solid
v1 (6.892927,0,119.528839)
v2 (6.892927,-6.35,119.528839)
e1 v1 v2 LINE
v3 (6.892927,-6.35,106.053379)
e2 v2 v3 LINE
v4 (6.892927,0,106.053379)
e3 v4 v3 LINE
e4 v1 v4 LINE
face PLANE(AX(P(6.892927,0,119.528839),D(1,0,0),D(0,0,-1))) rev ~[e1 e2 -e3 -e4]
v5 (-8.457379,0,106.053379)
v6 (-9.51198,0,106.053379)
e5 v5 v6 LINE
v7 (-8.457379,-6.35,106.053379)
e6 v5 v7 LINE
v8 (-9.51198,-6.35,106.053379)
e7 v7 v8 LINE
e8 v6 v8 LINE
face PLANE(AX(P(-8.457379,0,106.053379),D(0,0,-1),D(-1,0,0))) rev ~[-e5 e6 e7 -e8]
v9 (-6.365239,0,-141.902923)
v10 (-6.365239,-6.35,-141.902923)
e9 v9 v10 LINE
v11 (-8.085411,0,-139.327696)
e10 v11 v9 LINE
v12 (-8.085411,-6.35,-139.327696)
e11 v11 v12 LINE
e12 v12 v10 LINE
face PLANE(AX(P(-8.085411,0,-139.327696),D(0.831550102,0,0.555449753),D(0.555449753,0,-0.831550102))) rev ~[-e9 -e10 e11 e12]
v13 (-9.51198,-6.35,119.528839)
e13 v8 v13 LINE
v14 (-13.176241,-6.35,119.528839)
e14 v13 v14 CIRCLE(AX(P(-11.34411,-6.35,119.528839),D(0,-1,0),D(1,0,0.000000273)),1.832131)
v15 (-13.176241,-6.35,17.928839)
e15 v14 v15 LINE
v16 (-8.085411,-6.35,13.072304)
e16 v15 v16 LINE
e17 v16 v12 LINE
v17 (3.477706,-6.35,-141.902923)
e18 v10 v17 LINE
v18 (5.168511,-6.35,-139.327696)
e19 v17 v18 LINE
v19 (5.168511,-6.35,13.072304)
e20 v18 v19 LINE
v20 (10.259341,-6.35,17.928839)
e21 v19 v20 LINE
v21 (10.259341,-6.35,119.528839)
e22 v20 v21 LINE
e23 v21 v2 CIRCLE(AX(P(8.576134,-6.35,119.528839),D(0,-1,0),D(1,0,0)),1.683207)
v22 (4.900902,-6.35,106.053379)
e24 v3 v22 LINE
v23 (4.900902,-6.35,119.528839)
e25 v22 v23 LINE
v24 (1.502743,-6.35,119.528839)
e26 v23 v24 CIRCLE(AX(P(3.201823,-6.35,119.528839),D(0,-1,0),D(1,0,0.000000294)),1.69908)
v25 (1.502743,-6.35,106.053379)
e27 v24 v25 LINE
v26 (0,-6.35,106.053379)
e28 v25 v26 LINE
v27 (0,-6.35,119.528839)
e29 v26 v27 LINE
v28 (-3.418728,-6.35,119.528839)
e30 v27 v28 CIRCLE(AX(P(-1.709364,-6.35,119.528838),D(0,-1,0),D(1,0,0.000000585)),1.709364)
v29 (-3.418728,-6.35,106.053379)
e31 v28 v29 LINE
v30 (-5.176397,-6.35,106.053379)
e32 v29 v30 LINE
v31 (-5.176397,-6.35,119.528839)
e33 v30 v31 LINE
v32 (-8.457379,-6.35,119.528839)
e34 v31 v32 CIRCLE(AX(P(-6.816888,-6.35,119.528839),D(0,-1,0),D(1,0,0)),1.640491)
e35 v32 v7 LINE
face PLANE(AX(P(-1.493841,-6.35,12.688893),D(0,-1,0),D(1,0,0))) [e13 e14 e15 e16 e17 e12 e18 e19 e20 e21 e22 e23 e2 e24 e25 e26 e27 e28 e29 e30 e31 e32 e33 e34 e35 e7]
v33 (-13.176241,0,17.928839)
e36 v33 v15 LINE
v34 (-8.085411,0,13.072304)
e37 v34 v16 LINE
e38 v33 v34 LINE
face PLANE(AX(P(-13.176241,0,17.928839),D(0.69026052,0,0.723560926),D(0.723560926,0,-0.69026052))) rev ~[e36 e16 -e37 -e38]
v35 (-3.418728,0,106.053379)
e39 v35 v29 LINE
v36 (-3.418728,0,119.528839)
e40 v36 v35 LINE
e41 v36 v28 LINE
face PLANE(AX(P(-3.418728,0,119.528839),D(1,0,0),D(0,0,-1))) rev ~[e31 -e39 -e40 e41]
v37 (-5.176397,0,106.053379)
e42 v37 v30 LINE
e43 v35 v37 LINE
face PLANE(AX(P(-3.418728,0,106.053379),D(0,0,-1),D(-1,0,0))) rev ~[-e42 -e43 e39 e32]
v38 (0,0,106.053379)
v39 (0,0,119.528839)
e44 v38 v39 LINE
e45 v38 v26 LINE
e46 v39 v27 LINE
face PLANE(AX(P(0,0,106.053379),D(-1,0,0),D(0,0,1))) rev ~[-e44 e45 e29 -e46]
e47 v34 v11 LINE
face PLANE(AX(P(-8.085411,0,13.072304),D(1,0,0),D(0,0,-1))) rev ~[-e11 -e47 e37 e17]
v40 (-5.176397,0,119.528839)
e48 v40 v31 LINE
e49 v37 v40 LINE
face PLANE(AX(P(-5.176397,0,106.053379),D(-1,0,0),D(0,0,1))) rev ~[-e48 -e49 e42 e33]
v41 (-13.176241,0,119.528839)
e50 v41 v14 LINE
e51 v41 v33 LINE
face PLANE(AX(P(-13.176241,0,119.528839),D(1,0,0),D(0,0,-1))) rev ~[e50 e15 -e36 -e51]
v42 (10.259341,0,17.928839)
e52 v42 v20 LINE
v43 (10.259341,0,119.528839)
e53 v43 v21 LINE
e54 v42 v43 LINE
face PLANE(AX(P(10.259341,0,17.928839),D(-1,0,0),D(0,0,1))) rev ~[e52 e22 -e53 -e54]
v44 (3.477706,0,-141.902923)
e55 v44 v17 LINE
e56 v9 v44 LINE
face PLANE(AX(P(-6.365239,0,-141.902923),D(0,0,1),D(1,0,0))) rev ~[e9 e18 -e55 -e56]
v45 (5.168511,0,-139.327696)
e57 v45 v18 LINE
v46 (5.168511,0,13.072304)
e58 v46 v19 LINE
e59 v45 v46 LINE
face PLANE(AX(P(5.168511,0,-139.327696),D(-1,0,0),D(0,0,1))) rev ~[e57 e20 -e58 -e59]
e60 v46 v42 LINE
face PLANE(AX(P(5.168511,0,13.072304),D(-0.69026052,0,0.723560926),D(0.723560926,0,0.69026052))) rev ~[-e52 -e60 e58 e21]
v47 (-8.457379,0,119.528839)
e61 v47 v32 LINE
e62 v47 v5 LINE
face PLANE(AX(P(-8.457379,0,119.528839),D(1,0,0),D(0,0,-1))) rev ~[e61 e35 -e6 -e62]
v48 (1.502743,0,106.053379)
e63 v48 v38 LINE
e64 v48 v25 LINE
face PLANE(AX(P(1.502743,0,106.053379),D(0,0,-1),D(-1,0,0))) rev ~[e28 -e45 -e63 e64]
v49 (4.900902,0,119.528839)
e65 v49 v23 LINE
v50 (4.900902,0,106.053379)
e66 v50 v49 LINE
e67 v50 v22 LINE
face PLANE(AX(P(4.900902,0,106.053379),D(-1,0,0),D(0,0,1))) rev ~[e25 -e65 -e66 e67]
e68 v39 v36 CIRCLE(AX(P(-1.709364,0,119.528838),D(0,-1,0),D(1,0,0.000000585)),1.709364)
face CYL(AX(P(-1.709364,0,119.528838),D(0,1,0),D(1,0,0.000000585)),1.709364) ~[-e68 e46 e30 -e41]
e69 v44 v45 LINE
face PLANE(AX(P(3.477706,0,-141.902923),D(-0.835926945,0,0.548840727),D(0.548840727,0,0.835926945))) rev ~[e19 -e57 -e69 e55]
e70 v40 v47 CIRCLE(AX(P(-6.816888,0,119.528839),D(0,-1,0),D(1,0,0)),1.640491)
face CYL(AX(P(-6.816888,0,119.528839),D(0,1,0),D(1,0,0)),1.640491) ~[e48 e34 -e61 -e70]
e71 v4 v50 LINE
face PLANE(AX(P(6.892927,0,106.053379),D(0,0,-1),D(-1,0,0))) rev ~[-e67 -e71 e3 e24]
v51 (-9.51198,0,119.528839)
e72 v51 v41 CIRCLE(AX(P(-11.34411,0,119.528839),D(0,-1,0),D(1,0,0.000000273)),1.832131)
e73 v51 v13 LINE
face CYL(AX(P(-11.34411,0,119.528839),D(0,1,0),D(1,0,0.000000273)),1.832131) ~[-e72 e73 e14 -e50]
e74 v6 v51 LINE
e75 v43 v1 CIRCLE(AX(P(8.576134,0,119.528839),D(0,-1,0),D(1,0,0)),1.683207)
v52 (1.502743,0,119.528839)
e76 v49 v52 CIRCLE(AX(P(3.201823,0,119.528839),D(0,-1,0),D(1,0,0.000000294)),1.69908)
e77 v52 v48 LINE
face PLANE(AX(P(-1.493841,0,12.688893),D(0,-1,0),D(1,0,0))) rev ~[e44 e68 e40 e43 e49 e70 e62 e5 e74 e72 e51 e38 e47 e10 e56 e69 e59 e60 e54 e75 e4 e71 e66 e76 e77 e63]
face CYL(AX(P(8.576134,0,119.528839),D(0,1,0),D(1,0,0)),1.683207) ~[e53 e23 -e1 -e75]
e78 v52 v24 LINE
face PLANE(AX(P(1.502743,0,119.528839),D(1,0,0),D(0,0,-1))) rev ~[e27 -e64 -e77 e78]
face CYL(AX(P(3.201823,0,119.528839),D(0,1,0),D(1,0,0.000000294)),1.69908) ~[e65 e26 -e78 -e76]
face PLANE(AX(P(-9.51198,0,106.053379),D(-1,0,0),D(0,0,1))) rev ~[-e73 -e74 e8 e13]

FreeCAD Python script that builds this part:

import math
import FreeCAD as App
import Part
import Sketcher
from FreeCAD import Vector
Q = App.Units.Quantity

doc = App.newDocument("Part")
body = doc.addObject("PartDesign::Body", "Body")

sketch1 = doc.addObject("Sketcher::SketchObject", "Sketch")
body.addObject(sketch1)
sketch1.AttachmentSupport = (doc.XZ_Plane, [""])
sketch1.MapMode = "FlatFace"
sketch1.addGeometry([
    Part.LineSegment(Vector(-8.1, 13.1, 0), Vector(-8.1, -139.3, 0)),
    Part.LineSegment(Vector(-8.1, -139.3, 0), Vector(-6.4, -141.9, 0)),
    Part.LineSegment(Vector(-6.4, -141.9, 0), Vector(3.5, -141.9, 0)),
    Part.LineSegment(Vector(3.5, -141.9, 0), Vector(5.2, -139.3, 0)),
    Part.LineSegment(Vector(5.2, -139.3, 0), Vector(5.2, 13.1, 0)),
    Part.LineSegment(Vector(5.2, 13.1, 0), Vector(10.3, 17.9, 0)),
    Part.LineSegment(Vector(10.3, 17.9, 0), Vector(10.3, 119.5, 0)),
    Part.ArcOfCircle(Part.Circle(Vector(8.6, 119.5, 0), Vector(0, 0, 1), 1.7), math.radians(0), math.radians(180)),
    Part.LineSegment(Vector(6.9, 119.5, 0), Vector(6.9, 106.1, 0)),
    Part.LineSegment(Vector(6.9, 106.1, 0), Vector(4.9, 106.1, 0)),
    Part.LineSegment(Vector(4.9, 106.1, 0), Vector(4.9, 119.5, 0)),
    Part.ArcOfCircle(Part.Circle(Vector(3.2, 119.5, 0), Vector(0, 0, 1), 1.7), math.radians(0), math.radians(180)),
    Part.LineSegment(Vector(1.5, 119.5, 0), Vector(1.5, 106.1, 0)),
    Part.LineSegment(Vector(1.5, 106.1, 0), Vector(0, 106.1, 0)),
    Part.LineSegment(Vector(0, 106.1, 0), Vector(0, 119.5, 0)),
    Part.ArcOfCircle(Part.Circle(Vector(-1.7, 119.5, 0), Vector(0, 0, 1), 1.7), math.radians(0), math.radians(180)),
    Part.LineSegment(Vector(-3.4, 119.5, 0), Vector(-3.4, 106.1, 0)),
    Part.LineSegment(Vector(-3.4, 106.1, 0), Vector(-5.2, 106.1, 0)),
    Part.LineSegment(Vector(-5.2, 106.1, 0), Vector(-5.2, 119.5, 0)),
    Part.ArcOfCircle(Part.Circle(Vector(-6.8, 119.5, 0), Vector(0, 0, 1), 1.6), math.radians(0), math.radians(180)),
    Part.LineSegment(Vector(-8.5, 119.5, 0), Vector(-8.5, 106.1, 0)),
    Part.LineSegment(Vector(-8.5, 106.1, 0), Vector(-9.5, 106.1, 0)),
    Part.LineSegment(Vector(-9.5, 106.1, 0), Vector(-9.5, 119.5, 0)),
    Part.ArcOfCircle(Part.Circle(Vector(-11.3, 119.5, 0), Vector(0, 0, 1), 1.8), math.radians(0), math.radians(180)),
    Part.LineSegment(Vector(-13.2, 119.5, 0), Vector(-13.2, 17.9, 0)),
    Part.LineSegment(Vector(-13.2, 17.9, 0), Vector(-8.1, 13.1, 0)),
], False)
sketch1.addConstraint([
    Sketcher.Constraint("Coincident", 0, 2, 1, 1),
    Sketcher.Constraint("Coincident", 1, 2, 2, 1),
    Sketcher.Constraint("Coincident", 2, 2, 3, 1),
    Sketcher.Constraint("Coincident", 3, 2, 4, 1),
    Sketcher.Constraint("Coincident", 4, 2, 5, 1),
    Sketcher.Constraint("Coincident", 5, 2, 6, 1),
    Sketcher.Constraint("Tangent", 6, 2, 7, 1),
    Sketcher.Constraint("Tangent", 7, 2, 8, 1),
    Sketcher.Constraint("Coincident", 8, 2, 9, 1),
    Sketcher.Constraint("Coincident", 9, 2, 10, 1),
    Sketcher.Constraint("Tangent", 10, 2, 11, 1),
    Sketcher.Constraint("Tangent", 11, 2, 12, 1),
    Sketcher.Constraint("Coincident", 12, 2, 13, 1),
    Sketcher.Constraint("Coincident", 13, 2, 14, 1),
    Sketcher.Constraint("Tangent", 14, 2, 15, 1),
    Sketcher.Constraint("Tangent", 15, 2, 16, 1),
    Sketcher.Constraint("Coincident", 16, 2, 17, 1),
    Sketcher.Constraint("Coincident", 17, 2, 18, 1),
    Sketcher.Constraint("Tangent", 18, 2, 19, 1),
    Sketcher.Constraint("Tangent", 19, 2, 20, 1),
    Sketcher.Constraint("Coincident", 20, 2, 21, 1),
    Sketcher.Constraint("Coincident", 21, 2, 22, 1),
    Sketcher.Constraint("Tangent", 22, 2, 23, 1),
    Sketcher.Constraint("Tangent", 23, 2, 24, 1),
    Sketcher.Constraint("Coincident", 24, 2, 25, 1),
    Sketcher.Constraint("Coincident", 25, 2, 0, 1),
    Sketcher.Constraint("Vertical", 0),
    Sketcher.Constraint("Horizontal", 2),
    Sketcher.Constraint("Vertical", 4),
    Sketcher.Constraint("Vertical", 6),
    Sketcher.Constraint("Vertical", 8),
    Sketcher.Constraint("Horizontal", 9),
    Sketcher.Constraint("Vertical", 10),
    Sketcher.Constraint("Vertical", 12),
    Sketcher.Constraint("Horizontal", 13),
    Sketcher.Constraint("Vertical", 14),
    Sketcher.Constraint("Vertical", 16),
    Sketcher.Constraint("Horizontal", 17),
    Sketcher.Constraint("Vertical", 18),
    Sketcher.Constraint("Vertical", 20),
    Sketcher.Constraint("Horizontal", 21),
    Sketcher.Constraint("Vertical", 22),
    Sketcher.Constraint("Vertical", 24),
    Sketcher.Constraint("PointOnObject", 13, 2, -2),
    Sketcher.Constraint("Horizontal", 7, 3, 11, 3),
    Sketcher.Constraint("Horizontal", 11, 3, 15, 3),
    Sketcher.Constraint("Horizontal", 15, 3, 19, 3),
    Sketcher.Constraint("Horizontal", 19, 3, 23, 3),
    Sketcher.Constraint("Horizontal", 0, 2, 3, 2),
    Sketcher.Constraint("Horizontal", 9, 2, 12, 2),
    Sketcher.Constraint("Horizontal", 13, 2, 16, 2),
    Sketcher.Constraint("Horizontal", 17, 2, 20, 2),
    Sketcher.Constraint("Horizontal", 5, 2, 24, 2),
    Sketcher.Constraint("Horizontal", 4, 2, 25, 2),
    Sketcher.Constraint("Equal", 5, 25),
    Sketcher.Constraint("DistanceY", 0, 2, 0, 1, Q("6 in")),
    Sketcher.Constraint("DistanceY", 6, 1, 6, 2, Q("4 in")),
    Sketcher.Constraint("Distance", 5, Q("0.277 in")),
    Sketcher.Constraint("Radius", 11, 1.69908),
    Sketcher.Constraint("Radius", 19, 1.640491),
    Sketcher.Constraint("Radius", 23, 1.832131),
    Sketcher.Constraint("DistanceX", 21, 2, 21, 1, 1.054601),
    Sketcher.Constraint("DistanceX", 1, 2, -1, 1, Q("0.2506 in")),
    Sketcher.Constraint("Radius", 7, 1.683207),
    Sketcher.Constraint("Radius", 15, 1.709364),
    Sketcher.Constraint("Distance", 1, 3.096899),
    Sketcher.Constraint("DistanceX", 17, 2, 17, 1, 1.757669),
    Sketcher.Constraint("DistanceY", 8, 2, 8, 1, 13.47546),
    Sketcher.Constraint("DistanceX", 23, 3, 0, 2, 3.258699),
    Sketcher.Constraint("DistanceX", 19, 3, 4, 2, 11.985399),
    Sketcher.Constraint("DistanceX", 17, 2, 9, 2, 10.077299),
    Sketcher.Constraint("DistanceX", 2, 1, 2, 2, 9.842945),
    Sketcher.Constraint("DistanceY", -1, 1, 7, 3, 119.528839),
])
pad1 = doc.addObject("PartDesign::Pad", "Pad")
body.addObject(pad1)
pad1.Profile = sketch1
pad1.Length = Q("0.25 in")

doc.recompute()
